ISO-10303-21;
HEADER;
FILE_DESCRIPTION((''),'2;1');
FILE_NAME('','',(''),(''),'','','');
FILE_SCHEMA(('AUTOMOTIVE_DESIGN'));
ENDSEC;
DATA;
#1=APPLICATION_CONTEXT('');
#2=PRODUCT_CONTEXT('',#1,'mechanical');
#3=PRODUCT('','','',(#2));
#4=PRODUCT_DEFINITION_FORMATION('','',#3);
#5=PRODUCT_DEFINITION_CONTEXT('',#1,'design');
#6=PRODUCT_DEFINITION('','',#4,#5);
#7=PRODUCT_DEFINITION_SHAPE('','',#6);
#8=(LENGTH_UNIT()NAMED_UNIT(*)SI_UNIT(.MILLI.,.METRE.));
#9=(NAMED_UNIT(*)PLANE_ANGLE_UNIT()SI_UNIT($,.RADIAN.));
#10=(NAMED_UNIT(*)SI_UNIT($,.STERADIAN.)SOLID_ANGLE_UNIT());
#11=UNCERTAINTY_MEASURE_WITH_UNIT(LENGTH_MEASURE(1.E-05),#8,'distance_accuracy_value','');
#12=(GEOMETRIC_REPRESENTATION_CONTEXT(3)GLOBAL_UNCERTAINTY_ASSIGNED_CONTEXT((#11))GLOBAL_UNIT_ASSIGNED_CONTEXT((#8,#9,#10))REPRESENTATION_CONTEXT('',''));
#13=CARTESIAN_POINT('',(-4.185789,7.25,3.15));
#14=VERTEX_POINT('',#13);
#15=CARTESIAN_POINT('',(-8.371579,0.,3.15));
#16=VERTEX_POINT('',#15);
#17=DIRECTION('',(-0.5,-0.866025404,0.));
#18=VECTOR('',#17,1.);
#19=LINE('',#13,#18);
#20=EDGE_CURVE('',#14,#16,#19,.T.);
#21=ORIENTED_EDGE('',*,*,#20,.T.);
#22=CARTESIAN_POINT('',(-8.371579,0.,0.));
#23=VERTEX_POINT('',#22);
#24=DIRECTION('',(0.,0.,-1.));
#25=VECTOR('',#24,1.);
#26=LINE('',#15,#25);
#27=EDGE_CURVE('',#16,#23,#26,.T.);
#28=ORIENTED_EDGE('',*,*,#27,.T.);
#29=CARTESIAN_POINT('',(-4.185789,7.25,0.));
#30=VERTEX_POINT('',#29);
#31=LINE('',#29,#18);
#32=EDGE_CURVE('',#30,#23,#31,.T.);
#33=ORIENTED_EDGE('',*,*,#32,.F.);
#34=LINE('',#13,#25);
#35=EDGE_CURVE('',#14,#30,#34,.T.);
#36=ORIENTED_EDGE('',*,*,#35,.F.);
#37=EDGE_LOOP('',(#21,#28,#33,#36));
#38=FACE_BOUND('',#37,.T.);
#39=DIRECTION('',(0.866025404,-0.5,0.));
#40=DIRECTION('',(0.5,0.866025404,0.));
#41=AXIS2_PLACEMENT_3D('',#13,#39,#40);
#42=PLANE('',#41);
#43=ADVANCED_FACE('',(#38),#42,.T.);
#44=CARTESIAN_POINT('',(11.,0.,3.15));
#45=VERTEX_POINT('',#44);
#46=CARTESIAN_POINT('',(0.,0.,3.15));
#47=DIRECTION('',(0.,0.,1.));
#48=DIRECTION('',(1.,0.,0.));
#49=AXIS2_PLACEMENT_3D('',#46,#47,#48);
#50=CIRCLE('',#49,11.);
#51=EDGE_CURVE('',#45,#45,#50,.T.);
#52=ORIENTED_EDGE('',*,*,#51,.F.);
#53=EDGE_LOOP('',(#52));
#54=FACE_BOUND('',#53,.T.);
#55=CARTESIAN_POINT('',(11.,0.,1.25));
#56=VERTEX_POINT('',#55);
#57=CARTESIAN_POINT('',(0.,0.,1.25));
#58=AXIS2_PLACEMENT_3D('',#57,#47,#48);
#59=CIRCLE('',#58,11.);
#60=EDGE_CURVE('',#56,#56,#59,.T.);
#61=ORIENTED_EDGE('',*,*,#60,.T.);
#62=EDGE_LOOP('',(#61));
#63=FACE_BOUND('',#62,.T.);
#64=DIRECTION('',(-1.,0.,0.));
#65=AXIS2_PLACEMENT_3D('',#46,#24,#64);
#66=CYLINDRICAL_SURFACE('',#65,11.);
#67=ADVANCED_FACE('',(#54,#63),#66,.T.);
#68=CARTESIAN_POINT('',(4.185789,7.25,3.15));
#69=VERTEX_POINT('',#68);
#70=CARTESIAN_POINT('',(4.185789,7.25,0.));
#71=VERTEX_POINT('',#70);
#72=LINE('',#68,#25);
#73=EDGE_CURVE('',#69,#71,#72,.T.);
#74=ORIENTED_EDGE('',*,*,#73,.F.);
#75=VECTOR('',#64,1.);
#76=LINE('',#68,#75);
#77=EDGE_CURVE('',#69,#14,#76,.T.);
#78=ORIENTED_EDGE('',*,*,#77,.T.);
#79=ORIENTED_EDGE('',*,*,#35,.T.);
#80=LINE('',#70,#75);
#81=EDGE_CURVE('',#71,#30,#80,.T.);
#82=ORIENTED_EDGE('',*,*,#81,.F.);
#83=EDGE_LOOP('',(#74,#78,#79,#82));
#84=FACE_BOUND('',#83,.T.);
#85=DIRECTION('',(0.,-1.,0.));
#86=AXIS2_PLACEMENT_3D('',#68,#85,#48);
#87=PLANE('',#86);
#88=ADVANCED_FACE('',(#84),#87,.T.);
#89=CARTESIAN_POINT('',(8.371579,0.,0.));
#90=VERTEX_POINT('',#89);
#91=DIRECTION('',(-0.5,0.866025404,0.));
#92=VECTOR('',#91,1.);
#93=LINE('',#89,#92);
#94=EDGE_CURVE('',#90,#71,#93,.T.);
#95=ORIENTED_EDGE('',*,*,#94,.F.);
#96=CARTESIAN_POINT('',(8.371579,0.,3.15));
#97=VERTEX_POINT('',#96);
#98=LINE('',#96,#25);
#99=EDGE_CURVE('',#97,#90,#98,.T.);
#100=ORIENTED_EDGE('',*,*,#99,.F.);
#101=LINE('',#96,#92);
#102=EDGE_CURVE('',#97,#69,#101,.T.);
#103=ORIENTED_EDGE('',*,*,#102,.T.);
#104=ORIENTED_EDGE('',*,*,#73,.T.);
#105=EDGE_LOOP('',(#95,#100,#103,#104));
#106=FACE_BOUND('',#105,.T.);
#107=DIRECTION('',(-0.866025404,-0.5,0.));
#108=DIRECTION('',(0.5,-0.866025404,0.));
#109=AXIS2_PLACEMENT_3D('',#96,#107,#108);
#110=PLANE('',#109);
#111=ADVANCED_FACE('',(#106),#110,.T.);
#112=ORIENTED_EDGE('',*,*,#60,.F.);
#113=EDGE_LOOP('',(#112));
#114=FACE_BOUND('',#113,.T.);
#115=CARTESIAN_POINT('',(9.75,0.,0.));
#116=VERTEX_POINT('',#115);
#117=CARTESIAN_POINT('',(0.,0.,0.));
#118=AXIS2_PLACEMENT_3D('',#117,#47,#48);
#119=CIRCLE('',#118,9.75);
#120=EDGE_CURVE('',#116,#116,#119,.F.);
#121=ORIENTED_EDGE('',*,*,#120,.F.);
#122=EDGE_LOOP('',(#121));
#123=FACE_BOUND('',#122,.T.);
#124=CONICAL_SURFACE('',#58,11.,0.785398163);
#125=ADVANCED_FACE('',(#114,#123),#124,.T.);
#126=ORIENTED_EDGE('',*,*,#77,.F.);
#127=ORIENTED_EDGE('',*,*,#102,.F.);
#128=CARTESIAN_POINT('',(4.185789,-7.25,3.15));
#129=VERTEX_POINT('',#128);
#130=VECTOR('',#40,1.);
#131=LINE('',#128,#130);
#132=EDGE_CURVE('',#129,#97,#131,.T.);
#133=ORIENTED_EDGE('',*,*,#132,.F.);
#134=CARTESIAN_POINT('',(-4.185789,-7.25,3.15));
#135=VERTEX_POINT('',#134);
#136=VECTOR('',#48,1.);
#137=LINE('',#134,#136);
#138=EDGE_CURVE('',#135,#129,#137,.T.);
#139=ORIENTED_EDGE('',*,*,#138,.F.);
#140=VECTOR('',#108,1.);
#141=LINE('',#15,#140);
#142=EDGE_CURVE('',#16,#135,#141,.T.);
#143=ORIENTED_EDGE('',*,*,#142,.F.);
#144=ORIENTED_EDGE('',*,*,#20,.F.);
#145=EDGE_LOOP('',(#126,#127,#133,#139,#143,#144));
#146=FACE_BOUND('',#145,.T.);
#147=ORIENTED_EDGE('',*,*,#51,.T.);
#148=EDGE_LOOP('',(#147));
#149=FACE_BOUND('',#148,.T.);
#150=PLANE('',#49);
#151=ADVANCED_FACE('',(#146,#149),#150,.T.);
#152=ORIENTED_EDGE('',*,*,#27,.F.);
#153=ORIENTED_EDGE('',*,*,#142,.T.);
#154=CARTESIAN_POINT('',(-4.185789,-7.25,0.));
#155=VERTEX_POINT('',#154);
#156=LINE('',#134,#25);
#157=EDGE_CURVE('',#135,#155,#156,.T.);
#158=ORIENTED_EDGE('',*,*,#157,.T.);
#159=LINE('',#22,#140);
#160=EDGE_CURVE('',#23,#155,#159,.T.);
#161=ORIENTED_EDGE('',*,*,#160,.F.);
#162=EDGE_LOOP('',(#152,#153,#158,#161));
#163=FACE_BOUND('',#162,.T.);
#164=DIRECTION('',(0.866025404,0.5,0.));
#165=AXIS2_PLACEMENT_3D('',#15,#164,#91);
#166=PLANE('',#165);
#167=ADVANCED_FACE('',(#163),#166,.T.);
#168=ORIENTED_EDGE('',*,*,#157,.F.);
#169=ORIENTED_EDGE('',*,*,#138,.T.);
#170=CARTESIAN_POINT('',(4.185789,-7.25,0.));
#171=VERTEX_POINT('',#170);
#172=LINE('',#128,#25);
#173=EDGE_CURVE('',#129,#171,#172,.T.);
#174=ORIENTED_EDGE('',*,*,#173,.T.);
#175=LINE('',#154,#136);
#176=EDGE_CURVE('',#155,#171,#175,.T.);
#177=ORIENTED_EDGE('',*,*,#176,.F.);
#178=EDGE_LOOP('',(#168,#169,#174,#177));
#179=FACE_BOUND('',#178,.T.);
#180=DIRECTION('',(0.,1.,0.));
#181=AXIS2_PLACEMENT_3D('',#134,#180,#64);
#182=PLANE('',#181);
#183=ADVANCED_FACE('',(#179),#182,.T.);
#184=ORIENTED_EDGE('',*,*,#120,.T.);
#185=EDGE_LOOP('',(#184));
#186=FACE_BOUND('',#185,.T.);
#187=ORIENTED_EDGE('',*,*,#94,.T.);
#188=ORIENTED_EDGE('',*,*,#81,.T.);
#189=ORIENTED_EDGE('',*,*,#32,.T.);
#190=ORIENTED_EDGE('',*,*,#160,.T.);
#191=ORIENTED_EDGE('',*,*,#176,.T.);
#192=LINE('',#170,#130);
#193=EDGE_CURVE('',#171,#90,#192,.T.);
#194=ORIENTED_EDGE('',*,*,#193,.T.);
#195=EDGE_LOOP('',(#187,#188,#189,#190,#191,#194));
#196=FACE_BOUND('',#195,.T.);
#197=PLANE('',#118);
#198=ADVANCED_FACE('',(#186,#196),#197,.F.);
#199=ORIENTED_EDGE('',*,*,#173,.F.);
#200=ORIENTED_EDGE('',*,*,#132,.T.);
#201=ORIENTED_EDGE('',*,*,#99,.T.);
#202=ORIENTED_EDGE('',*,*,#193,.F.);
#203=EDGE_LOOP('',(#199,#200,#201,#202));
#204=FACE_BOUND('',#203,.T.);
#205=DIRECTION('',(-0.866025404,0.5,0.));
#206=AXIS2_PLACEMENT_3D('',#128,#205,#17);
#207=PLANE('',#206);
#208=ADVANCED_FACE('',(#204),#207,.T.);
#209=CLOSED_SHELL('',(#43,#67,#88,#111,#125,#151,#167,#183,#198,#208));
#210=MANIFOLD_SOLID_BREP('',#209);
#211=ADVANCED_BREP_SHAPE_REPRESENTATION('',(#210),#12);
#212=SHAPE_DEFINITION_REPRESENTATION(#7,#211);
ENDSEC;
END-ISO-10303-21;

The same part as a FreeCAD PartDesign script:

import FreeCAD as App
import Part
import Sketcher
from FreeCAD import Vector
Q = App.Units.Quantity


def edges_at(feature, points):
    """Names of the edges that pass closest to the given points."""
    edges = feature.Shape.Edges
    near = lambda p: min(range(len(edges)), key=lambda i: edges[i].distToShape(Part.Vertex(*p))[0])
    return sorted({f"Edge{near(p) + 1}" for p in points})

doc = App.newDocument("Part")
params = doc.addObject("Spreadsheet::Sheet", "Params")
for row, (alias, value) in enumerate([
    ("sketch1_diameter", "22 mm"),
    ("pad1_length", "3.15 mm"),
    ("chamfer_size", "1.25 mm"),
], start=1):
    params.set(f"A{row}", alias)
    params.set(f"B{row}", "=" + value)
    params.setAlias(f"B{row}", alias)

body = doc.addObject("PartDesign::Body", "Body")

sketch1 = body.newObject("Sketcher::SketchObject", "Sketch")
sketch1.AttachmentSupport = (doc.getObject("XY_Plane"), [""])
sketch1.MapMode = "FlatFace"
sketch1.addGeometry(Part.Circle(Vector(0, 0, 0), Vector(0, 0, 1), 11), False)
sketch1.addGeometry(Part.LineSegment(Vector(4.185789, 7.25, 0), Vector(8.371579, 0, 0)), False)
sketch1.addGeometry(Part.LineSegment(Vector(8.371579, 0, 0), Vector(4.185789, -7.25, 0)), False)
sketch1.addGeometry(Part.LineSegment(Vector(4.185789, -7.25, 0), Vector(-4.185789, -7.25, 0)), False)
sketch1.addGeometry(Part.LineSegment(Vector(-4.185789, -7.25, 0), Vector(-8.371579, 0, 0)), False)
sketch1.addGeometry(Part.LineSegment(Vector(-8.371579, 0, 0), Vector(-4.185789, 7.25, 0)), False)
sketch1.addGeometry(Part.LineSegment(Vector(-4.185789, 7.25, 0), Vector(4.185789, 7.25, 0)), False)
sketch1.addConstraint(Sketcher.Constraint("Coincident", 1, 2, 2, 1))
sketch1.addConstraint(Sketcher.Constraint("Coincident", 2, 2, 3, 1))
sketch1.addConstraint(Sketcher.Constraint("Coincident", 3, 2, 4, 1))
sketch1.addConstraint(Sketcher.Constraint("Coincident", 4, 2, 5, 1))
sketch1.addConstraint(Sketcher.Constraint("Coincident", 5, 2, 6, 1))
sketch1.addConstraint(Sketcher.Constraint("Coincident", 6, 2, 1, 1))
sketch1.addConstraint(Sketcher.Constraint("Horizontal", 3))
sketch1.addConstraint(Sketcher.Constraint("Horizontal", 6))
sketch1.addConstraint(Sketcher.Constraint("Coincident", 0, 3, -1, 1))
sketch1.addConstraint(Sketcher.Constraint("Symmetric", 1, 2, 4, 2, -1, 1))
sketch1.addConstraint(Sketcher.Constraint("Symmetric", 2, 2, 5, 2, -1, 1))
sketch1.addConstraint(Sketcher.Constraint("PointOnObject", 1, 2, -1))
sketch1.addConstraint(Sketcher.Constraint("Parallel", 1, 4))
sketch1.addConstraint(Sketcher.Constraint("Vertical", 3, 2, 5, 2))
sketch1.addConstraint(Sketcher.Constraint("Diameter", 0, Q("22 mm")))
sketch1.addConstraint(Sketcher.Constraint("Angle", 1, Q("-60 deg")))
sketch1.addConstraint(Sketcher.Constraint("DistanceY", 3, 2, 5, 2, Q("14.5 mm")))
sketch1.addConstraint(Sketcher.Constraint("DistanceX", 3, 2, 3, 1, Q("8.371579 mm")))
sketch1.setExpression("Constraints[14]", "Params.sketch1_diameter")
pad1 = body.newObject("PartDesign::Pad", "Pad")
pad1.Profile = sketch1
pad1.setExpression("Length", "Params.pad1_length")
doc.recompute()

chamfer = body.newObject("PartDesign::Chamfer", "Chamfer")
chamfer.Base = (pad1, edges_at(pad1, [(-11, 0, 0)]))
chamfer.setExpression("Size", "Params.chamfer_size")

doc.recompute()
